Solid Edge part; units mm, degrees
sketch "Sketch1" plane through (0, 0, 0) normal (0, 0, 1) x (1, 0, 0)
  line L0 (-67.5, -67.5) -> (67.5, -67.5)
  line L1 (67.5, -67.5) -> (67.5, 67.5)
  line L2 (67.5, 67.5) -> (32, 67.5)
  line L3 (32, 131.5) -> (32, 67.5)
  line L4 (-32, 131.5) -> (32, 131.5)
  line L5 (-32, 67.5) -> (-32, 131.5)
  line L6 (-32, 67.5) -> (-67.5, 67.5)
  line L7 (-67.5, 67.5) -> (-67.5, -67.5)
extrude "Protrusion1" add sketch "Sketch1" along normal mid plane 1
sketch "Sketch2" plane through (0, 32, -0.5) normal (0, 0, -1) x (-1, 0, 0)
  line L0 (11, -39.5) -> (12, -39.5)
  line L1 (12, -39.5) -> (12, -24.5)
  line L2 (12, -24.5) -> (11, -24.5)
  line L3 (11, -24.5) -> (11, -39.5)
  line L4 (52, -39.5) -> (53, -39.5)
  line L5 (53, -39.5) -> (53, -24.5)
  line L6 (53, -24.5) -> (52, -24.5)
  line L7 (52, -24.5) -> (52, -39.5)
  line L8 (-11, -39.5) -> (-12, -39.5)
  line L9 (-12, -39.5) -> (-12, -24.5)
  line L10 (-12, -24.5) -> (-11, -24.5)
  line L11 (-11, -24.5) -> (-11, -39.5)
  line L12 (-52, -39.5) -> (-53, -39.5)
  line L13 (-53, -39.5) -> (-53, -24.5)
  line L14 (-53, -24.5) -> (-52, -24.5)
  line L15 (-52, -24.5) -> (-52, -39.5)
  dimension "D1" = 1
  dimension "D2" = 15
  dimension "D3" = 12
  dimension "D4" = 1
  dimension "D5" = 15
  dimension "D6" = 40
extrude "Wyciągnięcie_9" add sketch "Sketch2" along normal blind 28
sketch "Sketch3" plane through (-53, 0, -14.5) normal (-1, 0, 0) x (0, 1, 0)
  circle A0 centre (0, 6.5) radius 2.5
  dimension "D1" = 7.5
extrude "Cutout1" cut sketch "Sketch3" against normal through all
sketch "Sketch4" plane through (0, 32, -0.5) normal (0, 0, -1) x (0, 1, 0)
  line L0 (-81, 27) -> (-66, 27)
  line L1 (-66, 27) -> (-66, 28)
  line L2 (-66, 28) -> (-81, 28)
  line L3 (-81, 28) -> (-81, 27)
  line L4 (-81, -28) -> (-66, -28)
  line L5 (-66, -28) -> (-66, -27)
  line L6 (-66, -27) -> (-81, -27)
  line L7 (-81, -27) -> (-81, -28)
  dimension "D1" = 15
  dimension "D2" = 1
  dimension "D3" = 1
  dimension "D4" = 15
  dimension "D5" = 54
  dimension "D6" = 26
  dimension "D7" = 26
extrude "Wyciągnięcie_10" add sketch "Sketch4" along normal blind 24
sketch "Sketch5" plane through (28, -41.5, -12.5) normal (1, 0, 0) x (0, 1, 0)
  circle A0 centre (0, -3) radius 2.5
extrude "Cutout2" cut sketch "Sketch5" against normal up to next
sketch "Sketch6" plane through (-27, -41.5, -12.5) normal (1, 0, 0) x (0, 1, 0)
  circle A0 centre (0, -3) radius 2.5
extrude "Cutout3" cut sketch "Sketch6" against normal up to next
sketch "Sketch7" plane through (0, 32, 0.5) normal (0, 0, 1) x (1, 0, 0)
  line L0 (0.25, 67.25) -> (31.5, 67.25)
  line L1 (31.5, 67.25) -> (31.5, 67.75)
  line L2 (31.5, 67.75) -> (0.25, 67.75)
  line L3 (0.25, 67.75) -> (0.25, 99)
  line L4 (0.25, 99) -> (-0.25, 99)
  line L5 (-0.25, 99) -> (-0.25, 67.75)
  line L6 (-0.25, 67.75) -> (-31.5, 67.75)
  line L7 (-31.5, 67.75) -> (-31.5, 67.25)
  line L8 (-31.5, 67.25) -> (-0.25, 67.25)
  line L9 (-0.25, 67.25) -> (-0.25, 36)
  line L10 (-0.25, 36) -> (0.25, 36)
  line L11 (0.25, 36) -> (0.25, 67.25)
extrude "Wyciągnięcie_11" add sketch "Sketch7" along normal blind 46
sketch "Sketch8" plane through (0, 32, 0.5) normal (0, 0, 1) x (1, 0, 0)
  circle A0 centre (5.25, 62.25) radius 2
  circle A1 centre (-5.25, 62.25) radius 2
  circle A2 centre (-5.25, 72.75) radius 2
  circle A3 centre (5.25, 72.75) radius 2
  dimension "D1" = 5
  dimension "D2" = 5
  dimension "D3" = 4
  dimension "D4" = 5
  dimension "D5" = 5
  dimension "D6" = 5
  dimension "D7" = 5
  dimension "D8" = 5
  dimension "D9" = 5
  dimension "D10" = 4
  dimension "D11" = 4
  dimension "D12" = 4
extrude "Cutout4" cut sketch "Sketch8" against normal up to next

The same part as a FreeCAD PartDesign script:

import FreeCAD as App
import Part
import Sketcher
Q = App.Units.Quantity

doc = App.newDocument("Part")
params = doc.addObject("Spreadsheet::Sheet", "Params")
for row, (alias, value) in enumerate([
    ("sketch1_width", "135 mm"),
    ("sketch1_width2", "64 mm"),
    ("pad1_length", "1 mm"),
    ("sketch2_width", "1 mm"),
    ("sketch2_height", "15 mm"),
    ("pad2_length", "28 mm"),
    ("sketch3_diameter", "5 mm"),
    ("sketch4_width", "1 mm"),
    ("sketch4_height", "15 mm"),
    ("pad3_length", "24 mm"),
    ("sketch5_diameter", "5 mm"),
    ("sketch6_diameter", "5 mm"),
    ("sketch7_width", "0.5 mm"),
    ("pad4_length", "46 mm"),
    ("sketch8_diameter", "4 mm"),
], start=1):
    params.set(f"A{row}", alias)
    params.set(f"B{row}", "=" + value)
    params.setAlias(f"B{row}", alias)

body = doc.addObject("PartDesign::Body", "Body")

sketch1 = body.newObject("Sketcher::SketchObject", "Sketch")
sketch1.AttachmentSupport = (doc.getObject("XY_Plane"), [""])
sketch1.MapMode = "FlatFace"
sketch1.addGeometry([
    Part.LineSegment(App.Vector(-68, 68, 0), App.Vector(-68, -68, 0)),
    Part.LineSegment(App.Vector(-68, -68, 0), App.Vector(68, -68, 0)),
    Part.LineSegment(App.Vector(68, -68, 0), App.Vector(68, 68, 0)),
    Part.LineSegment(App.Vector(68, 68, 0), App.Vector(32, 68, 0)),
    Part.LineSegment(App.Vector(32, 68, 0), App.Vector(32, 132, 0)),
    Part.LineSegment(App.Vector(32, 132, 0), App.Vector(-32, 132, 0)),
    Part.LineSegment(App.Vector(-32, 132, 0), App.Vector(-32, 68, 0)),
    Part.LineSegment(App.Vector(-32, 68, 0), App.Vector(-68, 68, 0)),
], False)
sketch1.addConstraint([
    Sketcher.Constraint("Coincident", 0, 2, 1, 1),
    Sketcher.Constraint("Coincident", 1, 2, 2, 1),
    Sketcher.Constraint("Coincident", 2, 2, 3, 1),
    Sketcher.Constraint("Coincident", 3, 2, 4, 1),
    Sketcher.Constraint("Coincident", 4, 2, 5, 1),
    Sketcher.Constraint("Coincident", 5, 2, 6, 1),
    Sketcher.Constraint("Coincident", 6, 2, 7, 1),
    Sketcher.Constraint("Coincident", 7, 2, 0, 1),
    Sketcher.Constraint("Vertical", 0),
    Sketcher.Constraint("Horizontal", 1),
    Sketcher.Constraint("Vertical", 2),
    Sketcher.Constraint("Horizontal", 3),
    Sketcher.Constraint("Vertical", 4),
    Sketcher.Constraint("Horizontal", 5),
    Sketcher.Constraint("Vertical", 6),
    Sketcher.Constraint("Horizontal", 7),
    Sketcher.Constraint("Symmetric", 0, 2, 2, 2, -1, 1),
    Sketcher.Constraint("Symmetric", 3, 2, 6, 2, -2),
    Sketcher.Constraint("Equal", 1, 0),
    Sketcher.Constraint("Equal", 5, 4),
    Sketcher.Constraint("DistanceX", 1, 1, 1, 2, Q("135 mm")),
    Sketcher.Constraint("DistanceX", 5, 2, 5, 1, Q("64 mm")),
])
sketch1.setExpression("Constraints[20]", "Params.sketch1_width")
sketch1.setExpression("Constraints[21]", "Params.sketch1_width2")
pad1 = body.newObject("PartDesign::Pad", "Pad")
pad1.Profile = sketch1
pad1.setExpression("Length", "Params.pad1_length")
pad1.Midplane = True

sketch2 = body.newObject("Sketcher::SketchObject", "Sketch001")
sketch2.AttachmentSupport = (doc.getObject("XY_Plane"), [""])
sketch2.MapMode = "FlatFace"
sketch2.AttachmentOffset = App.Placement(App.Vector(0, 0, -0.5), App.Rotation())
sketch2.addGeometry([
    Part.LineSegment(App.Vector(-11, 7.5, 0), App.Vector(-11, -7.5, 0)),
    Part.LineSegment(App.Vector(-11, -7.5, 0), App.Vector(-12, -7.5, 0)),
    Part.LineSegment(App.Vector(-12, -7.5, 0), App.Vector(-12, 7.5, 0)),
    Part.LineSegment(App.Vector(-12, 7.5, 0), App.Vector(-11, 7.5, 0)),
    Part.LineSegment(App.Vector(-52, 7.5, 0), App.Vector(-52, -7.5, 0)),
    Part.LineSegment(App.Vector(-52, -7.5, 0), App.Vector(-53, -7.5, 0)),
    Part.LineSegment(App.Vector(-53, -7.5, 0), App.Vector(-53, 7.5, 0)),
    Part.LineSegment(App.Vector(-53, 7.5, 0), App.Vector(-52, 7.5, 0)),
    Part.LineSegment(App.Vector(12, -7.5, 0), App.Vector(11, -7.5, 0)),
    Part.LineSegment(App.Vector(11, -7.5, 0), App.Vector(11, 7.5, 0)),
    Part.LineSegment(App.Vector(11, 7.5, 0), App.Vector(12, 7.5, 0)),
    Part.LineSegment(App.Vector(12, 7.5, 0), App.Vector(12, -7.5, 0)),
    Part.LineSegment(App.Vector(53, -7.5, 0), App.Vector(52, -7.5, 0)),
    Part.LineSegment(App.Vector(52, -7.5, 0), App.Vector(52, 7.5, 0)),
    Part.LineSegment(App.Vector(52, 7.5, 0), App.Vector(53, 7.5, 0)),
    Part.LineSegment(App.Vector(53, 7.5, 0), App.Vector(53, -7.5, 0)),
], False)
sketch2.addConstraint([
    Sketcher.Constraint("Coincident", 0, 2, 1, 1),
    Sketcher.Constraint("Coincident", 1, 2, 2, 1),
    Sketcher.Constraint("Coincident", 2, 2, 3, 1),
    Sketcher.Constraint("Coincident", 3, 2, 0, 1),
    Sketcher.Constraint("Coincident", 4, 2, 5, 1),
    Sketcher.Constraint("Coincident", 5, 2, 6, 1),
    Sketcher.Constraint("Coincident", 6, 2, 7, 1),
    Sketcher.Constraint("Coincident", 7, 2, 4, 1),
    Sketcher.Constraint("Coincident", 8, 2, 9, 1),
    Sketcher.Constraint("Coincident", 9, 2, 10, 1),
    Sketcher.Constraint("Coincident", 10, 2, 11, 1),
    Sketcher.Constraint("Coincident", 11, 2, 8, 1),
    Sketcher.Constraint("Coincident", 12, 2, 13, 1),
    Sketcher.Constraint("Coincident", 13, 2, 14, 1),
    Sketcher.Constraint("Coincident", 14, 2, 15, 1),
    Sketcher.Constraint("Coincident", 15, 2, 12, 1),
    Sketcher.Constraint("Vertical", 0),
    Sketcher.Constraint("Horizontal", 1),
    Sketcher.Constraint("Vertical", 2),
    Sketcher.Constraint("Horizontal", 3),
    Sketcher.Constraint("Vertical", 4),
    Sketcher.Constraint("Horizontal", 5),
    Sketcher.Constraint("Vertical", 6),
    Sketcher.Constraint("Horizontal", 7),
    Sketcher.Constraint("Horizontal", 8),
    Sketcher.Constraint("Vertical", 9),
    Sketcher.Constraint("Horizontal", 10),
    Sketcher.Constraint("Vertical", 11),
    Sketcher.Constraint("Horizontal", 12),
    Sketcher.Constraint("Vertical", 13),
    Sketcher.Constraint("Horizontal", 14),
    Sketcher.Constraint("Vertical", 15),
    Sketcher.Constraint("Symmetric", 3, 2, 8, 2, -1, 1),
    Sketcher.Constraint("Symmetric", 1, 2, 10, 2, -1, 1),
    Sketcher.Constraint("Symmetric", 7, 2, 12, 2, -1, 1),
    Sketcher.Constraint("Symmetric", 5, 2, 14, 2, -1, 1),
    Sketcher.Constraint("Horizontal", 1, 2, 4, 2),
    Sketcher.Constraint("Horizontal", 3, 2, 6, 2),
    Sketcher.Constraint("Horizontal", 5, 2, 8, 2),
    Sketcher.Constraint("Equal", 3, 5),
    Sketcher.Constraint("DistanceX", 0, 2, -1, 1, Q("11 mm")),
    Sketcher.Constraint("DistanceX", 1, 2, 1, 1, Q("1 mm")),
    Sketcher.Constraint("DistanceY", 0, 2, 0, 1, Q("15 mm")),
    Sketcher.Constraint("DistanceX", 4, 2, -1, 1, Q("52 mm")),
])
sketch2.setExpression("Constraints[41]", "Params.sketch2_width")
sketch2.setExpression("Constraints[42]", "Params.sketch2_height")
pad2 = body.newObject("PartDesign::Pad", "Pad001")
pad2.Profile = sketch2
pad2.setExpression("Length", "Params.pad2_length")
pad2.Reversed = True

sketch3 = body.newObject("Sketcher::SketchObject", "Sketch002")
sketch3.AttachmentSupport = (doc.getObject("YZ_Plane"), [""])
sketch3.MapMode = "FlatFace"
sketch3.AttachmentOffset = App.Placement(App.Vector(0, 0, -53), App.Rotation())
sketch3.addGeometry(Part.Circle(App.Vector(0, -21, 0), App.Vector(0, 0, 1), 2.5), False)
sketch3.addConstraint([
    Sketcher.Constraint("PointOnObject", 0, 3, -2),
    Sketcher.Constraint("Diameter", 0, Q("5 mm")),
    Sketcher.Constraint("DistanceY", 0, 3, -1, 1, Q("21 mm")),
])
sketch3.setExpression("Constraints[1]", "Params.sketch3_diameter")
pocket1 = body.newObject("PartDesign::Pocket", "Pocket")
pocket1.Profile = sketch3
pocket1.Type = "ThroughAll"
pocket1.Reversed = True

sketch4 = body.newObject("Sketcher::SketchObject", "Sketch003")
sketch4.AttachmentSupport = (doc.getObject("XY_Plane"), [""])
sketch4.MapMode = "FlatFace"
sketch4.AttachmentOffset = App.Placement(App.Vector(0, 0, -0.5), App.Rotation())
sketch4.addGeometry([
    Part.LineSegment(App.Vector(28, -49, 0), App.Vector(27, -49, 0)),
    Part.LineSegment(App.Vector(27, -49, 0), App.Vector(27, -34, 0)),
    Part.LineSegment(App.Vector(27, -34, 0), App.Vector(28, -34, 0)),
    Part.LineSegment(App.Vector(28, -34, 0), App.Vector(28, -49, 0)),
    Part.LineSegment(App.Vector(-27, -49, 0), App.Vector(-28, -49, 0)),
    Part.LineSegment(App.Vector(-28, -49, 0), App.Vector(-28, -34, 0)),
    Part.LineSegment(App.Vector(-28, -34, 0), App.Vector(-27, -34, 0)),
    Part.LineSegment(App.Vector(-27, -34, 0), App.Vector(-27, -49, 0)),
], False)
sketch4.addConstraint([
    Sketcher.Constraint("Coincident", 0, 2, 1, 1),
    Sketcher.Constraint("Coincident", 1, 2, 2, 1),
    Sketcher.Constraint("Coincident", 2, 2, 3, 1),
    Sketcher.Constraint("Coincident", 3, 2, 0, 1),
    Sketcher.Constraint("Coincident", 4, 2, 5, 1),
    Sketcher.Constraint("Coincident", 5, 2, 6, 1),
    Sketcher.Constraint("Coincident", 6, 2, 7, 1),
    Sketcher.Constraint("Coincident", 7, 2, 4, 1),
    Sketcher.Constraint("Horizontal", 0),
    Sketcher.Constraint("Vertical", 1),
    Sketcher.Constraint("Horizontal", 2),
    Sketcher.Constraint("Vertical", 3),
    Sketcher.Constraint("Horizontal", 4),
    Sketcher.Constraint("Vertical", 5),
    Sketcher.Constraint("Horizontal", 6),
    Sketcher.Constraint("Vertical", 7),
    Sketcher.Constraint("Symmetric", 3, 2, 4, 2, -2),
    Sketcher.Constraint("Symmetric", 1, 2, 6, 2, -2),
    Sketcher.Constraint("DistanceX", 0, 2, 0, 1, Q("1 mm")),
    Sketcher.Constraint("DistanceY", 1, 1, 1, 2, Q("15 mm")),
    Sketcher.Constraint("DistanceX", -1, 1, 0, 2, Q("27 mm")),
    Sketcher.Constraint("DistanceY", 0, 2, -1, 1, Q("49 mm")),
])
sketch4.setExpression("Constraints[18]", "Params.sketch4_width")
sketch4.setExpression("Constraints[19]", "Params.sketch4_height")
pad3 = body.newObject("PartDesign::Pad", "Pad002")
pad3.Profile = sketch4
pad3.setExpression("Length", "Params.pad3_length")
pad3.Reversed = True

sketch5 = body.newObject("Sketcher::SketchObject", "Sketch004")
sketch5.AttachmentSupport = (doc.getObject("YZ_Plane"), [""])
sketch5.MapMode = "FlatFace"
sketch5.AttachmentOffset = App.Placement(App.Vector(0, 0, 28), App.Rotation())
sketch5.addGeometry(Part.Circle(App.Vector(-41.5, -15.5, 0), App.Vector(0, 0, 1), 2.5), False)
sketch5.addConstraint([
    Sketcher.Constraint("Diameter", 0, Q("5 mm")),
    Sketcher.Constraint("DistanceX", 0, 3, -1, 1, Q("41.5 mm")),
    Sketcher.Constraint("DistanceY", 0, 3, -1, 1, Q("15.5 mm")),
])
sketch5.setExpression("Constraints[0]", "Params.sketch5_diameter")
pocket2 = body.newObject("PartDesign::Pocket", "Pocket001")
pocket2.Profile = sketch5
pocket2.Type = "UpToFirst"

sketch6 = body.newObject("Sketcher::SketchObject", "Sketch005")
sketch6.AttachmentSupport = (doc.getObject("YZ_Plane"), [""])
sketch6.MapMode = "FlatFace"
sketch6.AttachmentOffset = App.Placement(App.Vector(0, 0, -27), App.Rotation())
sketch6.addGeometry(Part.Circle(App.Vector(-41.5, -15.5, 0), App.Vector(0, 0, 1), 2.5), False)
sketch6.addConstraint([
    Sketcher.Constraint("Diameter", 0, Q("5 mm")),
    Sketcher.Constraint("DistanceX", 0, 3, -1, 1, Q("41.5 mm")),
    Sketcher.Constraint("DistanceY", 0, 3, -1, 1, Q("15.5 mm")),
])
sketch6.setExpression("Constraints[0]", "Params.sketch6_diameter")
pocket3 = body.newObject("PartDesign::Pocket", "Pocket002")
pocket3.Profile = sketch6
pocket3.Type = "UpToFirst"

sketch7 = body.newObject("Sketcher::SketchObject", "Sketch006")
sketch7.AttachmentSupport = (doc.getObject("XY_Plane"), [""])
sketch7.MapMode = "FlatFace"
sketch7.AttachmentOffset = App.Placement(App.Vector(0, 0, 0.5), App.Rotation())
sketch7.addGeometry([
    Part.LineSegment(App.Vector(0.2, 68, 0), App.Vector(0.2, 99.2, 0)),
    Part.LineSegment(App.Vector(0.2, 99.2, 0), App.Vector(31.5, 99.2, 0)),
    Part.LineSegment(App.Vector(31.5, 99.2, 0), App.Vector(31.5, 99.8, 0)),
    Part.LineSegment(App.Vector(31.5, 99.8, 0), App.Vector(0.2, 99.8, 0)),
    Part.LineSegment(App.Vector(0.2, 99.8, 0), App.Vector(0.2, 131, 0)),
    Part.LineSegment(App.Vector(0.2, 131, 0), App.Vector(-0.2, 131, 0)),
    Part.LineSegment(App.Vector(-0.2, 131, 0), App.Vector(-0.2, 99.8, 0)),
    Part.LineSegment(App.Vector(-0.2, 99.8, 0), App.Vector(-31.5, 99.8, 0)),
    Part.LineSegment(App.Vector(-31.5, 99.8, 0), App.Vector(-31.5, 99.2, 0)),
    Part.LineSegment(App.Vector(-31.5, 99.2, 0), App.Vector(-0.2, 99.2, 0)),
    Part.LineSegment(App.Vector(-0.2, 99.2, 0), App.Vector(-0.2, 68, 0)),
    Part.LineSegment(App.Vector(-0.2, 68, 0), App.Vector(0.2, 68, 0)),
], False)
sketch7.addConstraint([
    Sketcher.Constraint("Coincident", 0, 2, 1, 1),
    Sketcher.Constraint("Coincident", 1, 2, 2, 1),
    Sketcher.Constraint("Coincident", 2, 2, 3, 1),
    Sketcher.Constraint("Coincident", 3, 2, 4, 1),
    Sketcher.Constraint("Coincident", 4, 2, 5, 1),
    Sketcher.Constraint("Coincident", 5, 2, 6, 1),
    Sketcher.Constraint("Coincident", 6, 2, 7, 1),
    Sketcher.Constraint("Coincident", 7, 2, 8, 1),
    Sketcher.Constraint("Coincident", 8, 2, 9, 1),
    Sketcher.Constraint("Coincident", 9, 2, 10, 1),
    Sketcher.Constraint("Coincident", 10, 2, 11, 1),
    Sketcher.Constraint("Coincident", 11, 2, 0, 1),
    Sketcher.Constraint("Vertical", 0),
    Sketcher.Constraint("Horizontal", 1),
    Sketcher.Constraint("Vertical", 2),
    Sketcher.Constraint("Horizontal", 3),
    Sketcher.Constraint("Vertical", 4),
    Sketcher.Constraint("Horizontal", 5),
    Sketcher.Constraint("Vertical", 6),
    Sketcher.Constraint("Horizontal", 7),
    Sketcher.Constraint("Vertical", 8),
    Sketcher.Constraint("Horizontal", 9),
    Sketcher.Constraint("Vertical", 10),
    Sketcher.Constraint("Horizontal", 11),
    Sketcher.Constraint("Symmetric", 3, 2, 6, 2, -2),
    Sketcher.Constraint("Symmetric", 1, 2, 8, 2, -2),
    Sketcher.Constraint("Vertical", 0, 2, 3, 2),
    Sketcher.Constraint("Vertical", 6, 2, 9, 2),
    Sketcher.Constraint("Equal", 9, 0),
    Sketcher.Constraint("Equal", 11, 2),
    Sketcher.Constraint("Equal", 0, 4),
    Sketcher.Constraint("DistanceX", 5, 2, 5, 1, Q("0.5 mm")),
    Sketcher.Constraint("DistanceY", -1, 1, 4, 2, Q("131 mm")),
    Sketcher.Constraint("DistanceY", -1, 1, 10, 2, Q("68 mm")),
])
sketch7.setExpression("Constraints[31]", "Params.sketch7_width")
pad4 = body.newObject("PartDesign::Pad", "Pad003")
pad4.Profile = sketch7
pad4.setExpression("Length", "Params.pad4_length")

sketch8 = body.newObject("Sketcher::SketchObject", "Sketch007")
sketch8.AttachmentSupport = (doc.getObject("XY_Plane"), [""])
sketch8.MapMode = "FlatFace"
sketch8.AttachmentOffset = App.Placement(App.Vector(0, 0, 0.5), App.Rotation())
sketch8.addGeometry([
    Part.Circle(App.Vector(5.2, 94.2, 0), App.Vector(0, 0, 1), 2),
    Part.Circle(App.Vector(-5.2, 94.2, 0), App.Vector(0, 0, 1), 2),
    Part.Circle(App.Vector(-5.2, 104.8, 0), App.Vector(0, 0, 1), 2),
    Part.Circle(App.Vector(5.2, 104.8, 0), App.Vector(0, 0, 1), 2),
], False)
sketch8.addConstraint([
    Sketcher.Constraint("Equal", 0, 1),
    Sketcher.Constraint("Equal", 1, 2),
    Sketcher.Constraint("Equal", 2, 3),
    Sketcher.Constraint("Symmetric", 0, 3, 1, 3, -2),
    Sketcher.Constraint("Symmetric", 2, 3, 3, 3, -2),
    Sketcher.Constraint("Vertical", 1, 3, 2, 3),
    Sketcher.Constraint("Diameter", 0, Q("4 mm")),
    Sketcher.Constraint("DistanceX", -1, 1, 0, 3, Q("5.25 mm")),
    Sketcher.Constraint("DistanceY", 1, 3, 2, 3, Q("10.5 mm")),
    Sketcher.Constraint("DistanceY", -1, 1, 0, 3, Q("94.25 mm")),
])
sketch8.setExpression("Constraints[6]", "Params.sketch8_diameter")
pocket4 = body.newObject("PartDesign::Pocket", "Pocket003")
pocket4.Profile = sketch8
pocket4.Type = "UpToFirst"

doc.recompute()
